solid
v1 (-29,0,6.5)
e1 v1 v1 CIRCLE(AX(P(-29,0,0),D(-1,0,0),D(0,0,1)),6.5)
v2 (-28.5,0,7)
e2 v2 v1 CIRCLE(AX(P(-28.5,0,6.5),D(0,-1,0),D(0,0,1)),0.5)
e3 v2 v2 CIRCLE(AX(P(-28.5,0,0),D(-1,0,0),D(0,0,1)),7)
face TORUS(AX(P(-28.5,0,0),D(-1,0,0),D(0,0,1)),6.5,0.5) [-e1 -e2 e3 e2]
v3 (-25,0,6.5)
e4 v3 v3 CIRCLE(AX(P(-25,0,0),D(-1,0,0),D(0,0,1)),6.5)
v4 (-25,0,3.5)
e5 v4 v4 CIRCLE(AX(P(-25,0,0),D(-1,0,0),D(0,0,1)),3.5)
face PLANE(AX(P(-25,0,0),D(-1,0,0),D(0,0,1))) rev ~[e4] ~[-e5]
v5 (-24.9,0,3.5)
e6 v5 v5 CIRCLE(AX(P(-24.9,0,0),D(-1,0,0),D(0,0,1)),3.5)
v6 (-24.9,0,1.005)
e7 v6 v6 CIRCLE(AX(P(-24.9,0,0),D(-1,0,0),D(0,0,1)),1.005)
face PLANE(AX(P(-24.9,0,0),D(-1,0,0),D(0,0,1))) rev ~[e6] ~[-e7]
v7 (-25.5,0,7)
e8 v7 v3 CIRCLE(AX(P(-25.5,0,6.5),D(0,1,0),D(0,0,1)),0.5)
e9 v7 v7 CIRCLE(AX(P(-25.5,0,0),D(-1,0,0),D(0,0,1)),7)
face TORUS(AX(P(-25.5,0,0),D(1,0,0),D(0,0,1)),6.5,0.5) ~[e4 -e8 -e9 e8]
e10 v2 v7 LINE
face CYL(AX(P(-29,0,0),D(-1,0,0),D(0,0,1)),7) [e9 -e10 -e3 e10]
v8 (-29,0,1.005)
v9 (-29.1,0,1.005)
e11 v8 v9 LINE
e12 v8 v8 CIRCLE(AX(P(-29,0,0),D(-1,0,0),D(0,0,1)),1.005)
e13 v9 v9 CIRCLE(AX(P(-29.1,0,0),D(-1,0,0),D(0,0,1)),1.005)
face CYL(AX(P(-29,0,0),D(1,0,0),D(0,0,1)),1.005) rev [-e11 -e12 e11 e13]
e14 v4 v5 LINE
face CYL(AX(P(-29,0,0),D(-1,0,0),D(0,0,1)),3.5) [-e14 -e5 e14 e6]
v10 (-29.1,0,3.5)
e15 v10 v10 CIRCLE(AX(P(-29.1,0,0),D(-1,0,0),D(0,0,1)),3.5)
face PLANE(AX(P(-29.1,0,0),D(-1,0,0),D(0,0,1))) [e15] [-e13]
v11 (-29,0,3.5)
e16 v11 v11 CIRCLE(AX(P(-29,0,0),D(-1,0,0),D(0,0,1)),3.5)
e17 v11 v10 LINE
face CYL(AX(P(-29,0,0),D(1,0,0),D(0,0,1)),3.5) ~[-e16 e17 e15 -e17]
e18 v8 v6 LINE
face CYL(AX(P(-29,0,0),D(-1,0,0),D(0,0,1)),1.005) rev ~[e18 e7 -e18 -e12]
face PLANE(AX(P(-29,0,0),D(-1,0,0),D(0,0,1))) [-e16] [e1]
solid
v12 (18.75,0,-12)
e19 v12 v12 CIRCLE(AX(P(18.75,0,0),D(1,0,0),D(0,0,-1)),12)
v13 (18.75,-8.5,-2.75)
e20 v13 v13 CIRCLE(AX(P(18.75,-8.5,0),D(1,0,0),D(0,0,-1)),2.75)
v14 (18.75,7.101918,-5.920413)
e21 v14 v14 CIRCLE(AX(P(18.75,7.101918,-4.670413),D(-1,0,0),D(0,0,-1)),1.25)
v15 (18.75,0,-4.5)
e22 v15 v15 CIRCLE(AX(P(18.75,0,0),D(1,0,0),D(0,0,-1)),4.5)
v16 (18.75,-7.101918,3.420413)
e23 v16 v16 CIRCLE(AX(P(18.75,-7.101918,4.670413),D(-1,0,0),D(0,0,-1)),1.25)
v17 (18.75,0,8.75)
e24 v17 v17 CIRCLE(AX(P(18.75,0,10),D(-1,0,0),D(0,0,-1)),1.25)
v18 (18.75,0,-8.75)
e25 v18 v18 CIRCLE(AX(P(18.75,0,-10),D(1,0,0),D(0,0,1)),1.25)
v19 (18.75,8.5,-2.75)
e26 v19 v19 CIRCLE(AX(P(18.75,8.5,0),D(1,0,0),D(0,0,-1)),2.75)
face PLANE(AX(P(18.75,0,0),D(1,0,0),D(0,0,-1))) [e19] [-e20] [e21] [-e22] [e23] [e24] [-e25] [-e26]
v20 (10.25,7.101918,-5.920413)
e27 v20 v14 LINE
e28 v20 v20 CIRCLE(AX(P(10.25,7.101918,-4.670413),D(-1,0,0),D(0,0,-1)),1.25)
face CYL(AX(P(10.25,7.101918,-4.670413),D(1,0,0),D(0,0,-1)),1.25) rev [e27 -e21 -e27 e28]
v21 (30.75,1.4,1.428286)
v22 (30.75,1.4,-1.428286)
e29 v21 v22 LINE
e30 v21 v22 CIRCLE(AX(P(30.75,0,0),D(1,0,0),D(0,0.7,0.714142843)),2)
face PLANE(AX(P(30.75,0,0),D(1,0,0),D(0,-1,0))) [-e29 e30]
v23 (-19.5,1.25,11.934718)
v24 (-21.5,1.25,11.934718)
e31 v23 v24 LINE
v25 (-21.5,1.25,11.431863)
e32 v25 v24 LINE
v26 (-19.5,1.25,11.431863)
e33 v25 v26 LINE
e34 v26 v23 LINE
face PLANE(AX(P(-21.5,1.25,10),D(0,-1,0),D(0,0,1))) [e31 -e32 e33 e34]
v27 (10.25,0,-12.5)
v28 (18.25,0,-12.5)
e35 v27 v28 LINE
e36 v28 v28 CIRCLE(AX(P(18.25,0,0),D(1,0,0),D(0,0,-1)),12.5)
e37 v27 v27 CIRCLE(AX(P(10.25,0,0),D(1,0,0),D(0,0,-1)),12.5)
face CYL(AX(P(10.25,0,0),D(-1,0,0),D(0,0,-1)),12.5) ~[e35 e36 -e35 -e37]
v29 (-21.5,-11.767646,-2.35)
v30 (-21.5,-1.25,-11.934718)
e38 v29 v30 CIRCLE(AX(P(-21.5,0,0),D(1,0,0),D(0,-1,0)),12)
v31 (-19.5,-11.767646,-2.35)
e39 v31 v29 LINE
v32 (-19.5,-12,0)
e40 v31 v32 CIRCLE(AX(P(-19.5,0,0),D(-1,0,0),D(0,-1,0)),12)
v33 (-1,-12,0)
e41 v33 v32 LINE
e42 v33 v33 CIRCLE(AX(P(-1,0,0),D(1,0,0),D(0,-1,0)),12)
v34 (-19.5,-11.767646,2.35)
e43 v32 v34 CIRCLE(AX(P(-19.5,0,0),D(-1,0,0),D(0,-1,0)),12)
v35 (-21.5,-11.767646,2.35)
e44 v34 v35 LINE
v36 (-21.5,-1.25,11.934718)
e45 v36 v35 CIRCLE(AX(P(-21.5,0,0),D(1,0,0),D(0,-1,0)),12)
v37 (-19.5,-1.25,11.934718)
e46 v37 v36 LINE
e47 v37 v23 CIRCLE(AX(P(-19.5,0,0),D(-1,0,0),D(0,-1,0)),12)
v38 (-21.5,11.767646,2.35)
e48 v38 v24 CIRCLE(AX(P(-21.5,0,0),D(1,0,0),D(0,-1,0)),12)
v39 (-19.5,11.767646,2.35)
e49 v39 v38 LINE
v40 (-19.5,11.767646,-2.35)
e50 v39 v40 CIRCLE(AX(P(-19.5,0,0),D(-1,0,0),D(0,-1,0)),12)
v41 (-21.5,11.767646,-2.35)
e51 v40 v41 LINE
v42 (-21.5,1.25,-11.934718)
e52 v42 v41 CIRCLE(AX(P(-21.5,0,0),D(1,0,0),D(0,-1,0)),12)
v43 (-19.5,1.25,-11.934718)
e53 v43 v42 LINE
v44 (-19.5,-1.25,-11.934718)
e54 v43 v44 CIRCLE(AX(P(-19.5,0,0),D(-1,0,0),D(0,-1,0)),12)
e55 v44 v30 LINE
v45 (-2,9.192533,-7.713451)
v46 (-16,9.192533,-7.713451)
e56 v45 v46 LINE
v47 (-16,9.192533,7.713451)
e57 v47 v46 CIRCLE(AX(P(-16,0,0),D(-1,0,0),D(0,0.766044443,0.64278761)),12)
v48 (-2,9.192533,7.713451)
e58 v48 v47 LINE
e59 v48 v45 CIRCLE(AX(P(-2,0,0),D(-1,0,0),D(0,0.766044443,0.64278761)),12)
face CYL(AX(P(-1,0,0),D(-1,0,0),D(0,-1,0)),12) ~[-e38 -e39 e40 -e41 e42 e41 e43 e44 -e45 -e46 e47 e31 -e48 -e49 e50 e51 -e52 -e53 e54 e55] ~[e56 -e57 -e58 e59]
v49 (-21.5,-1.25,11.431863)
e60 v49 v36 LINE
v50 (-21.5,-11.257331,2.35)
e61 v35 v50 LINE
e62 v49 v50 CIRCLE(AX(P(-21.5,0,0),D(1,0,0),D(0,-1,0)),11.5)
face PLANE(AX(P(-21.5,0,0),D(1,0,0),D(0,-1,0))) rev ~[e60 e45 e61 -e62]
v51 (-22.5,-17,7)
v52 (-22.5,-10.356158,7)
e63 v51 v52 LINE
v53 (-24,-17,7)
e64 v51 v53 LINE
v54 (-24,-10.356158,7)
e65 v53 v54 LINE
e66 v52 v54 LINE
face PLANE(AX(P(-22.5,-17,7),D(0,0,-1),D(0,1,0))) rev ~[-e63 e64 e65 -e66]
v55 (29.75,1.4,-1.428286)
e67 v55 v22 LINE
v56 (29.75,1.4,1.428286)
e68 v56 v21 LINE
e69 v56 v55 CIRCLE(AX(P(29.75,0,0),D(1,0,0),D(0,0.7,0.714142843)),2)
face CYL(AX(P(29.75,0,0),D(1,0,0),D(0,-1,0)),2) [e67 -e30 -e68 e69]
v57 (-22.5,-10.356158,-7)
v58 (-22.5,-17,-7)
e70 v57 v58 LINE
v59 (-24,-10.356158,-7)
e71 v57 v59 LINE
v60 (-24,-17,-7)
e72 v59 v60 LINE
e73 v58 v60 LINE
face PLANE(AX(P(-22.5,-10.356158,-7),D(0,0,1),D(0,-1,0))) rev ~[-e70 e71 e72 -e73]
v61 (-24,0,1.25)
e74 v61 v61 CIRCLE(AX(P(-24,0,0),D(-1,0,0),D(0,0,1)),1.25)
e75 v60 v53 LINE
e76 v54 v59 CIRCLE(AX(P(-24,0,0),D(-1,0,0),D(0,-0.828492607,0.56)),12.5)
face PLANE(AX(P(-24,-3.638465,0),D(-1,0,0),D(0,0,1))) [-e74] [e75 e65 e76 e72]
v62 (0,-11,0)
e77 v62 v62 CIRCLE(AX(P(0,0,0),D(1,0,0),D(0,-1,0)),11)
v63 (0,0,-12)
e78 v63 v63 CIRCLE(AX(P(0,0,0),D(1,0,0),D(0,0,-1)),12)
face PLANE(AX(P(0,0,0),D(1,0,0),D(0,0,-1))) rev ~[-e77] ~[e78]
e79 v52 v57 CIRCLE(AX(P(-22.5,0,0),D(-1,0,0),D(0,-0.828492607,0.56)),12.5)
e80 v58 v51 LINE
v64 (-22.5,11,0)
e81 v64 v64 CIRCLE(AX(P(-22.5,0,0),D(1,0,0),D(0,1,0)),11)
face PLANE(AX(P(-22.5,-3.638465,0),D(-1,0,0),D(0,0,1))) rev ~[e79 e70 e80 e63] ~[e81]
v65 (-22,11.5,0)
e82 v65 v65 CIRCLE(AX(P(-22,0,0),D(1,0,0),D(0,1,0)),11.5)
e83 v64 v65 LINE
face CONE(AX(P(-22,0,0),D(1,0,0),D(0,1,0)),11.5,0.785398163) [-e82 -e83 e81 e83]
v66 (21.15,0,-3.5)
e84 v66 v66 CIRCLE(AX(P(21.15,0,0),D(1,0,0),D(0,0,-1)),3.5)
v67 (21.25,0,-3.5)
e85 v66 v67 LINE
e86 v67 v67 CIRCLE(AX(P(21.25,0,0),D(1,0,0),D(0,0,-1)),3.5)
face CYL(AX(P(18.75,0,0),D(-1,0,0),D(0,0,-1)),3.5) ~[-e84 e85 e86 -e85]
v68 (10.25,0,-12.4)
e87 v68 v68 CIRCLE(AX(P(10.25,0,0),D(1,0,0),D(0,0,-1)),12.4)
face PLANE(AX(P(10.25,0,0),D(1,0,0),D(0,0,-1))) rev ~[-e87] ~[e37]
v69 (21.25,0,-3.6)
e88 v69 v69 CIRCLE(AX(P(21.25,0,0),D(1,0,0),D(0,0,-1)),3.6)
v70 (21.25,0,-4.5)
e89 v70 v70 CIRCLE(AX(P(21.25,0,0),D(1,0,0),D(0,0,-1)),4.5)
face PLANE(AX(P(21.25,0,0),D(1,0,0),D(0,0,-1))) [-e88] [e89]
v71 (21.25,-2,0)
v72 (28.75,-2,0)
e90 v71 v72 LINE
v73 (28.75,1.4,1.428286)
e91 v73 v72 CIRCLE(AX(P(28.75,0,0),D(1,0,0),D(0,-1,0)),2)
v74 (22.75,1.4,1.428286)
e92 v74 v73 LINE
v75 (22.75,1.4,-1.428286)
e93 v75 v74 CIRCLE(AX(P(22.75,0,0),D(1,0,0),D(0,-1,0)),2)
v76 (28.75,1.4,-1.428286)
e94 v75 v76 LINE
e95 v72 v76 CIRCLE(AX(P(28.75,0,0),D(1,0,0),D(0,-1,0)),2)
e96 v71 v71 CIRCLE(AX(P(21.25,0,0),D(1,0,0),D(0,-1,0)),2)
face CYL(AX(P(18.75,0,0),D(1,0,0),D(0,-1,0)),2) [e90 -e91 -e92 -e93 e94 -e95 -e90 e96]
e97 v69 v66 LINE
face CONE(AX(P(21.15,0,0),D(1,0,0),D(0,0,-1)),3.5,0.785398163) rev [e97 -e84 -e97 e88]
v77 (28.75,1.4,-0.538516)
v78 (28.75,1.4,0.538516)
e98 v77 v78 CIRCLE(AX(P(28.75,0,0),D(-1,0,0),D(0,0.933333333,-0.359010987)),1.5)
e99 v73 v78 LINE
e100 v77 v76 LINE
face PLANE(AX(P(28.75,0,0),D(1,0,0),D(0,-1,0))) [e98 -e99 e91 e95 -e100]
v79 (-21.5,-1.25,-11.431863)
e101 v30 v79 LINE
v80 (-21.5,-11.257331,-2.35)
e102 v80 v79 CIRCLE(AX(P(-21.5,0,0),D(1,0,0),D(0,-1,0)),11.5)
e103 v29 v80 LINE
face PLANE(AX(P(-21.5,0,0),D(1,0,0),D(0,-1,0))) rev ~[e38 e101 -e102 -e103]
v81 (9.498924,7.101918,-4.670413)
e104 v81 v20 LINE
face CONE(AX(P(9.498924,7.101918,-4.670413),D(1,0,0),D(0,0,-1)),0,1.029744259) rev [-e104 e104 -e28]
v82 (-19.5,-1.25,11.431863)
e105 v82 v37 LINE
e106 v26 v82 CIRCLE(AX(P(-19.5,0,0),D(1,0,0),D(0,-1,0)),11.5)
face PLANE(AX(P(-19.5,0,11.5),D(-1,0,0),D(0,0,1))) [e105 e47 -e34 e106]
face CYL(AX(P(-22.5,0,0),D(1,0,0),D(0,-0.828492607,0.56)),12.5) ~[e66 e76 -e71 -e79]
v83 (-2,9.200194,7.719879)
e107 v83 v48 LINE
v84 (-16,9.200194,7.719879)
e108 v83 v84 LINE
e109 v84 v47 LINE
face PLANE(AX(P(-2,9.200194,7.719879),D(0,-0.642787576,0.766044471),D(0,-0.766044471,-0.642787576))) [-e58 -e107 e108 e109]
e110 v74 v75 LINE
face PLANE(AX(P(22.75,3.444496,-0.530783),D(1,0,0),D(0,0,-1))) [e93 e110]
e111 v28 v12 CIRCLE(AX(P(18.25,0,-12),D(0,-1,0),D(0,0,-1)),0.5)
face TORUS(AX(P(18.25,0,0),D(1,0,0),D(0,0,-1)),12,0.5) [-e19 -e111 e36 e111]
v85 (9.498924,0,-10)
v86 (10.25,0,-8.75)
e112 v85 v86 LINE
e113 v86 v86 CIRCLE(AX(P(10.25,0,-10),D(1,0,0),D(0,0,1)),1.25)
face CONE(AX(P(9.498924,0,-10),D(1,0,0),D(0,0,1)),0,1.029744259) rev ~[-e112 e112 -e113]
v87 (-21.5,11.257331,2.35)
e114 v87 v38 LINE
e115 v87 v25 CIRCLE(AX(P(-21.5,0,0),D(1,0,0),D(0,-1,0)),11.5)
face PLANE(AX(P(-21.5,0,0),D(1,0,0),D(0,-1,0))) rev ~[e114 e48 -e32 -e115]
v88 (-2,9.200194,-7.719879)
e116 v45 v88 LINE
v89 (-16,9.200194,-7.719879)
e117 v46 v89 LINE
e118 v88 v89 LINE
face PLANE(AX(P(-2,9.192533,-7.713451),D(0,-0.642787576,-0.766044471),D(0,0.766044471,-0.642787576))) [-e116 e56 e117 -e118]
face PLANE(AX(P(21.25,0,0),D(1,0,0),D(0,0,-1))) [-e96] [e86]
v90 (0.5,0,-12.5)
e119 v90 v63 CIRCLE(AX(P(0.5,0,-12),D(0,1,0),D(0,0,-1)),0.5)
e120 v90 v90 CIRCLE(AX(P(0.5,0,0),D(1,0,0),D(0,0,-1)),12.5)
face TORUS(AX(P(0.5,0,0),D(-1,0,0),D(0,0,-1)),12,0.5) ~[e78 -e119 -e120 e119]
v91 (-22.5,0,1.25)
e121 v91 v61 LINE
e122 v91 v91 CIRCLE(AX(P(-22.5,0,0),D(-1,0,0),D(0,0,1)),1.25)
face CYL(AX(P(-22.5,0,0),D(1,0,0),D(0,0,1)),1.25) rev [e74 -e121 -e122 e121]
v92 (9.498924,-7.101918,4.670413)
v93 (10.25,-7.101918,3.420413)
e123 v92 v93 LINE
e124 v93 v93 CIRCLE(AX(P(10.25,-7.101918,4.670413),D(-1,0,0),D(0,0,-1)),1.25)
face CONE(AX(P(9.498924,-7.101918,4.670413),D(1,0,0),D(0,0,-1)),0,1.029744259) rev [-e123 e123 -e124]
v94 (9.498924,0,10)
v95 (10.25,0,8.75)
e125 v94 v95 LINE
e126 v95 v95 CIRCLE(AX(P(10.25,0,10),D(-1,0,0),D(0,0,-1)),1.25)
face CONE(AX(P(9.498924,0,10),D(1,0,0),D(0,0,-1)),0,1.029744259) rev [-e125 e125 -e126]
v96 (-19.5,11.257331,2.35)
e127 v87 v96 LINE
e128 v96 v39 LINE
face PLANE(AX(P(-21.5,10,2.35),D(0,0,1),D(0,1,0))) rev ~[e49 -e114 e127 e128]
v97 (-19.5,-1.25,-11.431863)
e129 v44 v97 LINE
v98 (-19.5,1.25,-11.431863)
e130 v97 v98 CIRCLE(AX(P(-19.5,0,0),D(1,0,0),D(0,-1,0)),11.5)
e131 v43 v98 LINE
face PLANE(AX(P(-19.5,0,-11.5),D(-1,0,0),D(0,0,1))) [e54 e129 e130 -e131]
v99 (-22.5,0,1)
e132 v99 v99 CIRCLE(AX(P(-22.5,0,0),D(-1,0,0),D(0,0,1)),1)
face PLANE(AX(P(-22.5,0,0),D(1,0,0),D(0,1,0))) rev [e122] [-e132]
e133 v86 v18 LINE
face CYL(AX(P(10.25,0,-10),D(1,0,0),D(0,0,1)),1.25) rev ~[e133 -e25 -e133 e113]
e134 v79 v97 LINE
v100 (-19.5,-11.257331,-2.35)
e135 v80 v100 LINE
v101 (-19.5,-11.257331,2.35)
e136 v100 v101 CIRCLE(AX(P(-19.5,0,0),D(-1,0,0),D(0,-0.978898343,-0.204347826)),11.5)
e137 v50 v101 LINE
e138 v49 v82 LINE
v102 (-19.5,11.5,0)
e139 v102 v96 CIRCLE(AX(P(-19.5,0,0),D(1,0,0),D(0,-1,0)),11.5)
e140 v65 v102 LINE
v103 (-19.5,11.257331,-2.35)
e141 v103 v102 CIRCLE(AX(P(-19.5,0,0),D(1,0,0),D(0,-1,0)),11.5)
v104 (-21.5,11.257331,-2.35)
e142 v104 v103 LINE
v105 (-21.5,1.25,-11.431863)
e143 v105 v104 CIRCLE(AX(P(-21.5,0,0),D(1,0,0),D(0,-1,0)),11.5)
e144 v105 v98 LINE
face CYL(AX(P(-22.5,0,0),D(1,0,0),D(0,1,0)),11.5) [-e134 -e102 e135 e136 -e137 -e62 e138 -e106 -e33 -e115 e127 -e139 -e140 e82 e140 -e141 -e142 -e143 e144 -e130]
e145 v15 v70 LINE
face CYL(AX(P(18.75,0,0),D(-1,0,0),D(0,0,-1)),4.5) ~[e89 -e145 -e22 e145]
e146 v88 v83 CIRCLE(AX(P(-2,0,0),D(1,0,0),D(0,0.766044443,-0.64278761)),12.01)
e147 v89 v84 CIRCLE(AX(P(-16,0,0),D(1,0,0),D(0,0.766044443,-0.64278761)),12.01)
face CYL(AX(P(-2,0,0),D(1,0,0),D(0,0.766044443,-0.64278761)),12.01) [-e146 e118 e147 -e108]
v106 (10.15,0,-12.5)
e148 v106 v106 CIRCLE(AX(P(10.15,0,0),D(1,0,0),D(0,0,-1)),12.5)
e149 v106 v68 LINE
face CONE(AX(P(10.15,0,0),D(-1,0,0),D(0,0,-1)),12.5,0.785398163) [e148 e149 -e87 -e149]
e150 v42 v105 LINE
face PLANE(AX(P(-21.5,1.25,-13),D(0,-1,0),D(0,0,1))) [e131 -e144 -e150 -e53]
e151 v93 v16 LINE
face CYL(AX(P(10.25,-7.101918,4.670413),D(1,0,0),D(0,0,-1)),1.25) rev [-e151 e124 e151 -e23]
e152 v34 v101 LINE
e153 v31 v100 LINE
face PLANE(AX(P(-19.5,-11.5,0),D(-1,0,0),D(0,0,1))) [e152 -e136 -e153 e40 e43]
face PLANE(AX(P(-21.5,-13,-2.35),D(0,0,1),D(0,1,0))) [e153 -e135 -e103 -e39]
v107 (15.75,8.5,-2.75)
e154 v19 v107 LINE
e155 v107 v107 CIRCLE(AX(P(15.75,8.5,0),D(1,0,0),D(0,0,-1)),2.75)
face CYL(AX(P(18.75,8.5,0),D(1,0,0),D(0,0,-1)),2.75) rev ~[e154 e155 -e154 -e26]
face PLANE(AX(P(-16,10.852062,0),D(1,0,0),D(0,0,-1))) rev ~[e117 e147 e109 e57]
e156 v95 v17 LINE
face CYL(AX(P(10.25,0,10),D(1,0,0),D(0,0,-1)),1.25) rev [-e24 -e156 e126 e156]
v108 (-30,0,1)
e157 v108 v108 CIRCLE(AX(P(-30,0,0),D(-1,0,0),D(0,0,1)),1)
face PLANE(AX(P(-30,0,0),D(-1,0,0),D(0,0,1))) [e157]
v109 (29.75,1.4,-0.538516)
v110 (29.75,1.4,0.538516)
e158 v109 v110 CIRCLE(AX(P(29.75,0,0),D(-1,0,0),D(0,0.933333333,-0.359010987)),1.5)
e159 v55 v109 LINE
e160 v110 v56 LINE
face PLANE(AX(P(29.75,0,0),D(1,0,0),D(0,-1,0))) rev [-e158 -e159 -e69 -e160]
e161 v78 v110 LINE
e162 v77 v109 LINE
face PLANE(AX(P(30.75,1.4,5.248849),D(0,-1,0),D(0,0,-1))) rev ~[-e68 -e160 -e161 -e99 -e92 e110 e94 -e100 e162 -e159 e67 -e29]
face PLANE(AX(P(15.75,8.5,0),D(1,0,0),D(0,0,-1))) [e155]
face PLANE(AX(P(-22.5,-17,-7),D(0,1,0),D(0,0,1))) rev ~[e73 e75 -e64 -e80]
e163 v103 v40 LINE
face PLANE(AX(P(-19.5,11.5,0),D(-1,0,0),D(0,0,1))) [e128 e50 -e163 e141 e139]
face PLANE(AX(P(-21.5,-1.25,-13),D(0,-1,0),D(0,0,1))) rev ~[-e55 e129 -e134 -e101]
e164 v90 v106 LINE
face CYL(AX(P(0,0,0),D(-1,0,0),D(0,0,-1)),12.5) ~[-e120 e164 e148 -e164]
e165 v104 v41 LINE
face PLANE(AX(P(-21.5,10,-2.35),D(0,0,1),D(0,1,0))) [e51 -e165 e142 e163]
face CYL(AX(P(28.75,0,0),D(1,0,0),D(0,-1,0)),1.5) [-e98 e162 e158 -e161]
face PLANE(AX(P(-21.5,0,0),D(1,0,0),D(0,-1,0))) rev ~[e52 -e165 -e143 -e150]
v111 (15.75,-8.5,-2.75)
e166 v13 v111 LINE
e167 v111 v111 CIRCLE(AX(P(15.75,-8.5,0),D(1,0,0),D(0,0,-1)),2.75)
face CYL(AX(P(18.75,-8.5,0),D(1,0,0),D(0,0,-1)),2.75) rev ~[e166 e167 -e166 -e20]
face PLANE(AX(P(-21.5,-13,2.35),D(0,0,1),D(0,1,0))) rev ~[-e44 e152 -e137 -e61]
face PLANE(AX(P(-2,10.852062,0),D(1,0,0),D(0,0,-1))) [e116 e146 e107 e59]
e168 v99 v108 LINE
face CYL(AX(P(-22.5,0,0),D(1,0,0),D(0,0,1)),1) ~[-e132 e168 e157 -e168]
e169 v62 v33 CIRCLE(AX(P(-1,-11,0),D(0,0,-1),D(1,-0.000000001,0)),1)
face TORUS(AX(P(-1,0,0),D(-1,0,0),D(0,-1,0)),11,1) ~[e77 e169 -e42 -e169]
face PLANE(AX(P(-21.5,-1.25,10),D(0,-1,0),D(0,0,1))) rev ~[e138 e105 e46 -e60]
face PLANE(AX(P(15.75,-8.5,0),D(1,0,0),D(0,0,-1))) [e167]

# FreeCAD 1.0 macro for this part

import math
import FreeCAD as App
import Part
import Sketcher
Q = App.Units.Quantity


def edges_at(feature, points):
    """Names of the edges that pass closest to the given points."""
    edges = feature.Shape.Edges
    near = lambda p: min(range(len(edges)), key=lambda i: edges[i].distToShape(Part.Vertex(*p))[0])
    return sorted({f"Edge{near(p) + 1}" for p in points})

doc = App.newDocument("Part")
params = doc.addObject("Spreadsheet::Sheet", "Params")
for row, (alias, value) in enumerate([
    ("sketch1_radius", "1 mm"),
    ("sketch1_radius2", "0.5 mm"),
    ("sketch1_height", "11 mm"),
    ("sketch1_width", "20.5 mm"),
    ("revolution_angle", "360 deg"),
    ("sketch2_width", "3 mm"),
    ("sketch2_width2", "2.5 mm"),
    ("sketch2_height", "4.7 mm"),
    ("pocket1_length", "2 mm"),
    ("sketch3_radius", "0.5 mm"),
    ("sketch3_width", "22 mm"),
    ("sketch3_height", "11 mm"),
    ("revolution2_angle", "360 deg"),
    ("chamfer_size", "0.5 mm"),
    ("sketch4_diameter", "2.5 mm"),
    ("sketch4_radius", "12.5 mm"),
    ("sketch4_height", "14 mm"),
    ("pad1_length", "1.5 mm"),
    ("sketch5_diameter", "25 mm"),
    ("pad2_length", "10.25 mm"),
    ("fillet_radius", "0.5 mm"),
    ("chamfer2_size", "0.1 mm"),
    ("sketch6_diameter", "25 mm"),
    ("pad3_length", "8.5 mm"),
    ("fillet2_radius", "0.5 mm"),
    ("sketch7_diameter", "9 mm"),
    ("sketch7_diameter2", "7 mm"),
    ("pad4_length", "2.5 mm"),
    ("chamfer3_size", "0.1 mm"),
    ("sketch8_diameter", "7 mm"),
    ("sketch8_diameter2", "4 mm"),
    ("pad5_length", "2.5 mm"),
    ("sketch9_width", "10 mm"),
    ("sketch9_width2", "1 mm"),
    ("sketch9_height", "2 mm"),
    ("sketch9_height2", "0.5 mm"),
    ("revolution3_angle", "360 deg"),
    ("pocket2_length", "8 mm"),
    ("sketch11_diameter", "2 mm"),
    ("pad6_length", "7.5 mm"),
    ("sketch12_diameter", "5.5 mm"),
    ("pocket3_length", "3 mm"),
    ("sketch13_width", "8.5 mm"),
    ("sketch13_height", "1.25 mm"),
    ("groove_angle", "360 deg"),
    ("sketch14_width", "8.5 mm"),
    ("sketch14_height", "1.25 mm"),
    ("groove2_angle", "360 deg"),
    ("linearpattern_pitch", "17 mm"),
    ("sketch15_radius", "12 mm"),
    ("sketch15_radius2", "12.01 mm"),
    ("pad7_length", "14 mm"),
    ("sketch16_diameter", "14 mm"),
    ("sketch16_diameter2", "7 mm"),
    ("pad8_length", "4 mm"),
    ("fillet3_radius", "0.5 mm"),
    ("sketch17_diameter", "7 mm"),
    ("sketch17_diameter2", "2.01 mm"),
    ("pad9_length", "0.1 mm"),
    ("pad9_length2", "4.1 mm"),
], start=1):
    params.set(f"A{row}", alias)
    params.set(f"B{row}", "=" + value)
    params.setAlias(f"B{row}", alias)

body = doc.addObject("PartDesign::Body", "Body")

sketch1 = body.newObject("Sketcher::SketchObject", "Sketch")
sketch1.AttachmentSupport = (doc.getObject("XY_Plane"), [""])
sketch1.MapMode = "FlatFace"
sketch1.addGeometry([
    Part.LineSegment(App.Vector(0, -11, 0), App.Vector(0, 0, 0)),
    Part.LineSegment(App.Vector(0, 0, 0), App.Vector(-0.5, 0, 0)),
    Part.LineSegment(App.Vector(-0.5, 0, 0), App.Vector(-0.5, -11, 0)),
    Part.ArcOfCircle(Part.Circle(App.Vector(-1, -11, 0), App.Vector(0, 0, 1), 0.5), math.radians(-90), math.radians(0)),
    Part.LineSegment(App.Vector(-1, -11.5, 0), App.Vector(-21.5, -11.5, 0)),
    Part.LineSegment(App.Vector(-21.5, -11.5, 0), App.Vector(-21.5, -12, 0)),
    Part.LineSegment(App.Vector(-21.5, -12, 0), App.Vector(-1, -12, 0)),
    Part.ArcOfCircle(Part.Circle(App.Vector(-1, -11, 0), App.Vector(0, 0, 1), 1), math.radians(-90), math.radians(0)),
], False)
sketch1.addConstraint([
    Sketcher.Constraint("Coincident", 0, 2, 1, 1),
    Sketcher.Constraint("Coincident", 1, 2, 2, 1),
    Sketcher.Constraint("Tangent", 2, 2, 3, 2),
    Sketcher.Constraint("Tangent", 3, 1, 4, 1),
    Sketcher.Constraint("Coincident", 4, 2, 5, 1),
    Sketcher.Constraint("Coincident", 5, 2, 6, 1),
    Sketcher.Constraint("Tangent", 6, 2, 7, 1),
    Sketcher.Constraint("Tangent", 7, 2, 0, 1),
    Sketcher.Constraint("Vertical", 0),
    Sketcher.Constraint("Horizontal", 1),
    Sketcher.Constraint("Vertical", 2),
    Sketcher.Constraint("Horizontal", 4),
    Sketcher.Constraint("Vertical", 5),
    Sketcher.Constraint("Horizontal", 6),
    Sketcher.Constraint("Coincident", 0, 2, -1, 1),
    Sketcher.Constraint("Coincident", 7, 3, 3, 3),
    Sketcher.Constraint("Radius", 7, 1.0),
    Sketcher.Constraint("Radius", 3, 0.5),
    Sketcher.Constraint("DistanceY", 0, 1, 0, 2, 11.0),
    Sketcher.Constraint("DistanceX", 4, 2, 4, 1, 20.5),
])
sketch1.setExpression("Constraints[16]", "Params.sketch1_radius")
sketch1.setExpression("Constraints[17]", "Params.sketch1_radius2")
sketch1.setExpression("Constraints[18]", "Params.sketch1_height")
sketch1.setExpression("Constraints[19]", "Params.sketch1_width")
revolution = body.newObject("PartDesign::Revolution", "Revolution")
revolution.Profile = sketch1
revolution.ReferenceAxis = (sketch1, ["H_Axis"])
revolution.setExpression("Angle", "Params.revolution_angle")

sketch2 = body.newObject("Sketcher::SketchObject", "Sketch001")
sketch2.AttachmentSupport = (doc.getObject("YZ_Plane"), [""])
sketch2.MapMode = "FlatFace"
sketch2.AttachmentOffset = App.Placement(App.Vector(0, 0, -21.5), App.Rotation())
sketch2.addGeometry([
    Part.LineSegment(App.Vector(-10, -2.4, 0), App.Vector(-13, -2.4, 0)),
    Part.LineSegment(App.Vector(-13, -2.4, 0), App.Vector(-13, 2.4, 0)),
    Part.LineSegment(App.Vector(-13, 2.4, 0), App.Vector(-10, 2.4, 0)),
    Part.LineSegment(App.Vector(-10, 2.4, 0), App.Vector(-10, -2.4, 0)),
    Part.LineSegment(App.Vector(13, -2.4, 0), App.Vector(10, -2.4, 0)),
    Part.LineSegment(App.Vector(10, -2.4, 0), App.Vector(10, 2.4, 0)),
    Part.LineSegment(App.Vector(10, 2.4, 0), App.Vector(13, 2.4, 0)),
    Part.LineSegment(App.Vector(13, 2.4, 0), App.Vector(13, -2.4, 0)),
    Part.LineSegment(App.Vector(1.2, 10, 0), App.Vector(-1.2, 10, 0)),
    Part.LineSegment(App.Vector(-1.2, 10, 0), App.Vector(-1.2, 13, 0)),
    Part.LineSegment(App.Vector(-1.2, 13, 0), App.Vector(1.2, 13, 0)),
    Part.LineSegment(App.Vector(1.2, 13, 0), App.Vector(1.2, 10, 0)),
    Part.LineSegment(App.Vector(1.2, -13, 0), App.Vector(-1.2, -13, 0)),
    Part.LineSegment(App.Vector(-1.2, -13, 0), App.Vector(-1.2, -10, 0)),
    Part.LineSegment(App.Vector(-1.2, -10, 0), App.Vector(1.2, -10, 0)),
    Part.LineSegment(App.Vector(1.2, -10, 0), App.Vector(1.2, -13, 0)),
], False)
sketch2.addConstraint([
    Sketcher.Constraint("Coincident", 0, 2, 1, 1),
    Sketcher.Constraint("Coincident", 1, 2, 2, 1),
    Sketcher.Constraint("Coincident", 2, 2, 3, 1),
    Sketcher.Constraint("Coincident", 3, 2, 0, 1),
    Sketcher.Constraint("Coincident", 4, 2, 5, 1),
    Sketcher.Constraint("Coincident", 5, 2, 6, 1),
    Sketcher.Constraint("Coincident", 6, 2, 7, 1),
    Sketcher.Constraint("Coincident", 7, 2, 4, 1),
    Sketcher.Constraint("Coincident", 8, 2, 9, 1),
    Sketcher.Constraint("Coincident", 9, 2, 10, 1),
    Sketcher.Constraint("Coincident", 10, 2, 11, 1),
    Sketcher.Constraint("Coincident", 11, 2, 8, 1),
    Sketcher.Constraint("Coincident", 12, 2, 13, 1),
    Sketcher.Constraint("Coincident", 13, 2, 14, 1),
    Sketcher.Constraint("Coincident", 14, 2, 15, 1),
    Sketcher.Constraint("Coincident", 15, 2, 12, 1),
    Sketcher.Constraint("Horizontal", 0),
    Sketcher.Constraint("Vertical", 1),
    Sketcher.Constraint("Horizontal", 2),
    Sketcher.Constraint("Vertical", 3),
    Sketcher.Constraint("Horizontal", 4),
    Sketcher.Constraint("Vertical", 5),
    Sketcher.Constraint("Horizontal", 6),
    Sketcher.Constraint("Vertical", 7),
    Sketcher.Constraint("Horizontal", 8),
    Sketcher.Constraint("Vertical", 9),
    Sketcher.Constraint("Horizontal", 10),
    Sketcher.Constraint("Vertical", 11),
    Sketcher.Constraint("Horizontal", 12),
    Sketcher.Constraint("Vertical", 13),
    Sketcher.Constraint("Horizontal", 14),
    Sketcher.Constraint("Vertical", 15),
    Sketcher.Constraint("Symmetric", 2, 2, 4, 2, -1, 1),
    Sketcher.Constraint("Symmetric", 0, 2, 6, 2, -1, 1),
    Sketcher.Constraint("Symmetric", 10, 2, 12, 2, -1, 1),
    Sketcher.Constraint("Symmetric", 8, 2, 14, 2, -1, 1),
    Sketcher.Constraint("Horizontal", 3, 2, 4, 2),
    Sketcher.Constraint("Vertical", 9, 2, 12, 2),
    Sketcher.Constraint("Equal", 6, 9),
    Sketcher.Constraint("DistanceX", 0, 2, 0, 1, 3.0),
    Sketcher.Constraint("DistanceX", 8, 2, 8, 1, 2.5),
    Sketcher.Constraint("DistanceY", 1, 1, 1, 2, 4.7),
    Sketcher.Constraint("DistanceX", 0, 2, -1, 1, 13.0),
    Sketcher.Constraint("DistanceY", -1, 1, 8, 2, 10.0),
])
sketch2.setExpression("Constraints[39]", "Params.sketch2_width")
sketch2.setExpression("Constraints[40]", "Params.sketch2_width2")
sketch2.setExpression("Constraints[41]", "Params.sketch2_height")
pocket1 = body.newObject("PartDesign::Pocket", "Pocket")
pocket1.Profile = sketch2
pocket1.setExpression("Length", "Params.pocket1_length")
pocket1.Reversed = True

sketch3 = body.newObject("Sketcher::SketchObject", "Sketch002")
sketch3.AttachmentSupport = (doc.getObject("XY_Plane"), [""])
sketch3.MapMode = "FlatFace"
sketch3.addGeometry([
    Part.LineSegment(App.Vector(-0.5, 0, 0), App.Vector(-0.5, 11, 0)),
    Part.ArcOfCircle(Part.Circle(App.Vector(-1, 11, 0), App.Vector(0, 0, 1), 0.5), math.radians(0), math.radians(90)),
    Part.LineSegment(App.Vector(-1, 11.5, 0), App.Vector(-22.5, 11.5, 0)),
    Part.LineSegment(App.Vector(-22.5, 11.5, 0), App.Vector(-22.5, 0, 0)),
    Part.LineSegment(App.Vector(-22.5, 0, 0), App.Vector(-0.5, 0, 0)),
], False)
sketch3.addConstraint([
    Sketcher.Constraint("Tangent", 0, 2, 1, 1),
    Sketcher.Constraint("Tangent", 1, 2, 2, 1),
    Sketcher.Constraint("Coincident", 2, 2, 3, 1),
    Sketcher.Constraint("Coincident", 3, 2, 4, 1),
    Sketcher.Constraint("Coincident", 4, 2, 0, 1),
    Sketcher.Constraint("Vertical", 0),
    Sketcher.Constraint("Horizontal", 2),
    Sketcher.Constraint("Vertical", 3),
    Sketcher.Constraint("Horizontal", 4),
    Sketcher.Constraint("PointOnObject", 3, 2, -1),
    Sketcher.Constraint("Radius", 1, 0.5),
    Sketcher.Constraint("DistanceX", 4, 1, 4, 2, 22.0),
    Sketcher.Constraint("DistanceY", 0, 1, 0, 2, 11.0),
    Sketcher.Constraint("DistanceX", 1, 3, -1, 1, 1.0),
])
sketch3.setExpression("Constraints[10]", "Params.sketch3_radius")
sketch3.setExpression("Constraints[11]", "Params.sketch3_width")
sketch3.setExpression("Constraints[12]", "Params.sketch3_height")
revolution2 = body.newObject("PartDesign::Revolution", "Revolution001")
revolution2.Profile = sketch3
revolution2.ReferenceAxis = (sketch3, ["H_Axis"])
revolution2.setExpression("Angle", "Params.revolution2_angle")
doc.recompute()

chamfer = body.newObject("PartDesign::Chamfer", "Chamfer")
chamfer.Base = (revolution2, edges_at(revolution2, [(-22.5, -11.5, 0)]))
chamfer.setExpression("Size", "Params.chamfer_size")

sketch4 = body.newObject("Sketcher::SketchObject", "Sketch003")
sketch4.AttachmentSupport = (doc.getObject("YZ_Plane"), [""])
sketch4.MapMode = "FlatFace"
sketch4.AttachmentOffset = App.Placement(App.Vector(0, 0, -22.5), App.Rotation())
sketch4.addGeometry([
    Part.LineSegment(App.Vector(-10.4, -7, 0), App.Vector(-17, -7, 0)),
    Part.LineSegment(App.Vector(-17, -7, 0), App.Vector(-17, 7, 0)),
    Part.LineSegment(App.Vector(-17, 7, 0), App.Vector(-10.4, 7, 0)),
    Part.ArcOfCircle(Part.Circle(App.Vector(0, 0, 0), App.Vector(0, 0, 1), 12.5), math.radians(-146), math.radians(146)),
    Part.Circle(App.Vector(0, 0, 0), App.Vector(0, 0, 1), 1.2),
], False)
sketch4.addConstraint([
    Sketcher.Constraint("Coincident", 0, 2, 1, 1),
    Sketcher.Constraint("Coincident", 1, 2, 2, 1),
    Sketcher.Constraint("Coincident", 2, 2, 3, 2),
    Sketcher.Constraint("Coincident", 3, 1, 0, 1),
    Sketcher.Constraint("Horizontal", 0),
    Sketcher.Constraint("Vertical", 1),
    Sketcher.Constraint("Horizontal", 2),
    Sketcher.Constraint("Coincident", 3, 3, -1, 1),
    Sketcher.Constraint("Coincident", 4, 3, -1, 1),
    Sketcher.Constraint("Vertical", 2, 2, 3, 1),
    Sketcher.Constraint("Diameter", 4, 2.5),
    Sketcher.Constraint("Radius", 3, 12.5),
    Sketcher.Constraint("DistanceY", 1, 1, 1, 2, 14.0),
    Sketcher.Constraint("DistanceX", 0, 2, -1, 1, 17.0),
])
sketch4.setExpression("Constraints[10]", "Params.sketch4_diameter")
sketch4.setExpression("Constraints[11]", "Params.sketch4_radius")
sketch4.setExpression("Constraints[12]", "Params.sketch4_height")
pad1 = body.newObject("PartDesign::Pad", "Pad")
pad1.Profile = sketch4
pad1.setExpression("Length", "Params.pad1_length")
pad1.Reversed = True

sketch5 = body.newObject("Sketcher::SketchObject", "Sketch004")
sketch5.AttachmentSupport = (doc.getObject("YZ_Plane"), [""])
sketch5.MapMode = "FlatFace"
sketch5.addGeometry(Part.Circle(App.Vector(0, 0, 0), App.Vector(0, 0, 1), 12), False)
sketch5.addConstraint([
    Sketcher.Constraint("Coincident", 0, 3, -1, 1),
    Sketcher.Constraint("Diameter", 0, 25.0),
])
sketch5.setExpression("Constraints[1]", "Params.sketch5_diameter")
pad2 = body.newObject("PartDesign::Pad", "Pad001")
pad2.Profile = sketch5
pad2.setExpression("Length", "Params.pad2_length")
doc.recompute()

fillet = body.newObject("PartDesign::Fillet", "Fillet")
fillet.Base = (pad2, edges_at(pad2, [(0, 0, 12.5)]))
fillet.setExpression("Radius", "Params.fillet_radius")
doc.recompute()

chamfer2 = body.newObject("PartDesign::Chamfer", "Chamfer001")
chamfer2.Base = (fillet, edges_at(fillet, [(10.25, 0, 12.5)]))
chamfer2.setExpression("Size", "Params.chamfer2_size")

sketch6 = body.newObject("Sketcher::SketchObject", "Sketch005")
sketch6.AttachmentSupport = (doc.getObject("YZ_Plane"), [""])
sketch6.MapMode = "FlatFace"
sketch6.AttachmentOffset = App.Placement(App.Vector(0, 0, 10.25), App.Rotation())
sketch6.addGeometry(Part.Circle(App.Vector(0, 0, 0), App.Vector(0, 0, 1), 12), False)
sketch6.addConstraint([
    Sketcher.Constraint("Coincident", 0, 3, -1, 1),
    Sketcher.Constraint("Diameter", 0, 25.0),
])
sketch6.setExpression("Constraints[1]", "Params.sketch6_diameter")
pad3 = body.newObject("PartDesign::Pad", "Pad002")
pad3.Profile = sketch6
pad3.setExpression("Length", "Params.pad3_length")
doc.recompute()

fillet2 = body.newObject("PartDesign::Fillet", "Fillet001")
fillet2.Base = (pad3, edges_at(pad3, [(18.75, 0, 12.5)]))
fillet2.setExpression("Radius", "Params.fillet2_radius")

sketch7 = body.newObject("Sketcher::SketchObject", "Sketch006")
sketch7.AttachmentSupport = (doc.getObject("YZ_Plane"), [""])
sketch7.MapMode = "FlatFace"
sketch7.AttachmentOffset = App.Placement(App.Vector(0, 0, 18.75), App.Rotation())
sketch7.addGeometry([
    Part.Circle(App.Vector(0, 0, 0), App.Vector(0, 0, 1), 4.5),
    Part.Circle(App.Vector(0, 0, 0), App.Vector(0, 0, 1), 3.5),
], False)
sketch7.addConstraint([
    Sketcher.Constraint("Coincident", 0, 3, -1, 1),
    Sketcher.Constraint("Coincident", 1, 3, -1, 1),
    Sketcher.Constraint("Diameter", 0, 9.0),
    Sketcher.Constraint("Diameter", 1, 7.0),
])
sketch7.setExpression("Constraints[2]", "Params.sketch7_diameter")
sketch7.setExpression("Constraints[3]", "Params.sketch7_diameter2")
pad4 = body.newObject("PartDesign::Pad", "Pad003")
pad4.Profile = sketch7
pad4.setExpression("Length", "Params.pad4_length")
doc.recompute()

chamfer3 = body.newObject("PartDesign::Chamfer", "Chamfer002")
chamfer3.Base = (pad4, edges_at(pad4, [(21.25, 0, 3.5)]))
chamfer3.setExpression("Size", "Params.chamfer3_size")

sketch8 = body.newObject("Sketcher::SketchObject", "Sketch007")
sketch8.AttachmentSupport = (doc.getObject("YZ_Plane"), [""])
sketch8.MapMode = "FlatFace"
sketch8.AttachmentOffset = App.Placement(App.Vector(0, 0, 18.75), App.Rotation())
sketch8.addGeometry([
    Part.Circle(App.Vector(0, 0, 0), App.Vector(0, 0, 1), 3.5),
    Part.Circle(App.Vector(0, 0, 0), App.Vector(0, 0, 1), 2),
], False)
sketch8.addConstraint([
    Sketcher.Constraint("Coincident", 0, 3, -1, 1),
    Sketcher.Constraint("Coincident", 1, 3, -1, 1),
    Sketcher.Constraint("Diameter", 0, 7.0),
    Sketcher.Constraint("Diameter", 1, 4.0),
])
sketch8.setExpression("Constraints[2]", "Params.sketch8_diameter")
sketch8.setExpression("Constraints[3]", "Params.sketch8_diameter2")
pad5 = body.newObject("PartDesign::Pad", "Pad004")
pad5.Profile = sketch8
pad5.setExpression("Length", "Params.pad5_length")

sketch9 = body.newObject("Sketcher::SketchObject", "Sketch008")
sketch9.AttachmentSupport = (doc.getObject("XY_Plane"), [""])
sketch9.MapMode = "FlatFace"
sketch9.addGeometry([
    Part.LineSegment(App.Vector(18.8, -2, 0), App.Vector(28.8, -2, 0)),
    Part.LineSegment(App.Vector(28.8, -2, 0), App.Vector(28.8, -1.5, 0)),
    Part.LineSegment(App.Vector(28.8, -1.5, 0), App.Vector(29.8, -1.5, 0)),
    Part.LineSegment(App.Vector(29.8, -1.5, 0), App.Vector(29.8, -2, 0)),
    Part.LineSegment(App.Vector(29.8, -2, 0), App.Vector(30.8, -2, 0)),
    Part.LineSegment(App.Vector(30.8, -2, 0), App.Vector(30.8, 0, 0)),
    Part.LineSegment(App.Vector(30.8, 0, 0), App.Vector(18.8, 0, 0)),
    Part.LineSegment(App.Vector(18.8, 0, 0), App.Vector(18.8, -2, 0)),
], False)
sketch9.addConstraint([
    Sketcher.Constraint("Coincident", 0, 2, 1, 1),
    Sketcher.Constraint("Coincident", 1, 2, 2, 1),
    Sketcher.Constraint("Coincident", 2, 2, 3, 1),
    Sketcher.Constraint("Coincident", 3, 2, 4, 1),
    Sketcher.Constraint("Coincident", 4, 2, 5, 1),
    Sketcher.Constraint("Coincident", 5, 2, 6, 1),
    Sketcher.Constraint("Coincident", 6, 2, 7, 1),
    Sketcher.Constraint("Coincident", 7, 2, 0, 1),
    Sketcher.Constraint("Horizontal", 0),
    Sketcher.Constraint("Vertical", 1),
    Sketcher.Constraint("Horizontal", 2),
    Sketcher.Constraint("Vertical", 3),
    Sketcher.Constraint("Horizontal", 4),
    Sketcher.Constraint("Vertical", 5),
    Sketcher.Constraint("Horizontal", 6),
    Sketcher.Constraint("Vertical", 7),
    Sketcher.Constraint("PointOnObject", 5, 2, -1),
    Sketcher.Constraint("Horizontal", 0, 2, 3, 2),
    Sketcher.Constraint("Equal", 2, 4),
    Sketcher.Constraint("DistanceX", 0, 1, 0, 2, 10.0),
    Sketcher.Constraint("DistanceX", 2, 1, 2, 2, 1.0),
    Sketcher.Constraint("DistanceY", 5, 1, 5, 2, 2.0),
    Sketcher.Constraint("DistanceY", 1, 1, 1, 2, 0.5),
    Sketcher.Constraint("DistanceX", -1, 1, 0, 2, 28.75),
])
sketch9.setExpression("Constraints[19]", "Params.sketch9_width")
sketch9.setExpression("Constraints[20]", "Params.sketch9_width2")
sketch9.setExpression("Constraints[21]", "Params.sketch9_height")
sketch9.setExpression("Constraints[22]", "Params.sketch9_height2")
revolution3 = body.newObject("PartDesign::Revolution", "Revolution002")
revolution3.Profile = sketch9
revolution3.ReferenceAxis = (sketch9, ["H_Axis"])
revolution3.setExpression("Angle", "Params.revolution3_angle")

sketch10 = body.newObject("Sketcher::SketchObject", "Sketch009")
sketch10.AttachmentSupport = (doc.getObject("YZ_Plane"), [""])
sketch10.MapMode = "FlatFace"
sketch10.AttachmentOffset = App.Placement(App.Vector(0, 0, 30.75), App.Rotation())
sketch10.addGeometry([
    Part.LineSegment(App.Vector(5.5, 5.2, 0), App.Vector(1.4, 5.2, 0)),
    Part.LineSegment(App.Vector(1.4, 5.2, 0), App.Vector(1.4, -6.3, 0)),
    Part.LineSegment(App.Vector(1.4, -6.3, 0), App.Vector(5.5, -6.3, 0)),
    Part.LineSegment(App.Vector(5.5, -6.3, 0), App.Vector(5.5, 5.2, 0)),
], False)
sketch10.addConstraint([
    Sketcher.Constraint("Coincident", 0, 2, 1, 1),
    Sketcher.Constraint("Coincident", 1, 2, 2, 1),
    Sketcher.Constraint("Coincident", 2, 2, 3, 1),
    Sketcher.Constraint("Coincident", 3, 2, 0, 1),
    Sketcher.Constraint("Horizontal", 0),
    Sketcher.Constraint("Vertical", 1),
    Sketcher.Constraint("Horizontal", 2),
    Sketcher.Constraint("Vertical", 3),
    Sketcher.Constraint("DistanceX", -1, 1, 0, 2, 1.4),
    Sketcher.Constraint("DistanceX", 0, 2, 0, 1, 4.088991),
    Sketcher.Constraint("DistanceY", 1, 2, 1, 1, 11.559264),
    Sketcher.Constraint("DistanceY", -1, 1, 0, 2, 5.248849),
])
pocket2 = body.newObject("PartDesign::Pocket", "Pocket001")
pocket2.Profile = sketch10
pocket2.setExpression("Length", "Params.pocket2_length")

sketch11 = body.newObject("Sketcher::SketchObject", "Sketch010")
sketch11.AttachmentSupport = (doc.getObject("YZ_Plane"), [""])
sketch11.MapMode = "FlatFace"
sketch11.AttachmentOffset = App.Placement(App.Vector(0, 0, -22.5), App.Rotation())
sketch11.addGeometry(Part.Circle(App.Vector(0, 0, 0), App.Vector(0, 0, 1), 1), False)
sketch11.addConstraint([
    Sketcher.Constraint("Coincident", 0, 3, -1, 1),
    Sketcher.Constraint("Diameter", 0, 2.0),
])
sketch11.setExpression("Constraints[1]", "Params.sketch11_diameter")
pad6 = body.newObject("PartDesign::Pad", "Pad005")
pad6.Profile = sketch11
pad6.setExpression("Length", "Params.pad6_length")
pad6.Reversed = True

sketch12 = body.newObject("Sketcher::SketchObject", "Sketch011")
sketch12.AttachmentSupport = (doc.getObject("YZ_Plane"), [""])
sketch12.MapMode = "FlatFace"
sketch12.AttachmentOffset = App.Placement(App.Vector(0, 0, 18.75), App.Rotation())
sketch12.addGeometry([
    Part.Circle(App.Vector(8.5, 0, 0), App.Vector(0, 0, 1), 2.8),
    Part.Circle(App.Vector(-8.5, 0, 0), App.Vector(0, 0, 1), 2.8),
], False)
sketch12.addConstraint([
    Sketcher.Constraint("Equal", 0, 1),
    Sketcher.Constraint("Symmetric", 0, 3, 1, 3, -1, 1),
    Sketcher.Constraint("PointOnObject", 0, 3, -1),
    Sketcher.Constraint("Diameter", 0, 5.5),
    Sketcher.Constraint("DistanceX", 1, 3, 0, 3, 17.0),
])
sketch12.setExpression("Constraints[3]", "Params.sketch12_diameter")
pocket3 = body.newObject("PartDesign::Pocket", "Pocket002")
pocket3.Profile = sketch12
pocket3.setExpression("Length", "Params.pocket3_length")

sketch13 = body.newObject("Sketcher::SketchObject", "Sketch012")
sketch13.AttachmentSupport = (doc.getObject("XZ_Plane"), [""])
sketch13.MapMode = "FlatFace"
sketch13.addGeometry([
    Part.LineSegment(App.Vector(9.5, 10, 0), App.Vector(18.8, 10, 0)),
    Part.LineSegment(App.Vector(18.8, 10, 0), App.Vector(18.8, 8.8, 0)),
    Part.LineSegment(App.Vector(18.8, 8.8, 0), App.Vector(10.2, 8.8, 0)),
    Part.LineSegment(App.Vector(10.2, 8.8, 0), App.Vector(9.5, 10, 0)),
], False)
sketch13.addGeometry(Part.LineSegment(App.Vector(18.8, 10, 0), App.Vector(9.5, 10, 0)), True)
sketch13.addConstraint([
    Sketcher.Constraint("Coincident", 0, 2, 1, 1),
    Sketcher.Constraint("Coincident", 1, 2, 2, 1),
    Sketcher.Constraint("Coincident", 2, 2, 3, 1),
    Sketcher.Constraint("Coincident", 3, 2, 0, 1),
    Sketcher.Constraint("Horizontal", 0),
    Sketcher.Constraint("Vertical", 1),
    Sketcher.Constraint("Horizontal", 2),
    Sketcher.Constraint("Horizontal", 4),
    Sketcher.Constraint("Coincident", 4, 1, 0, 2),
    Sketcher.Constraint("Equal", 0, 4),
    Sketcher.Constraint("Angle", 3, Q("121 deg")),
    Sketcher.Constraint("DistanceX", 2, 2, 2, 1, 8.5),
    Sketcher.Constraint("DistanceY", -1, 1, 0, 2, 10.0),
    Sketcher.Constraint("DistanceY", 1, 2, 1, 1, 1.25),
    Sketcher.Constraint("DistanceX", -1, 1, 0, 2, 18.75),
])
sketch13.setExpression("Constraints[11]", "Params.sketch13_width")
sketch13.setExpression("Constraints[13]", "Params.sketch13_height")
groove = body.newObject("PartDesign::Groove", "Groove")
groove.Profile = sketch13
groove.ReferenceAxis = (sketch13, ["Axis0"])
groove.setExpression("Angle", "Params.groove_angle")
doc.recompute()

mirrored = body.newObject("PartDesign::Mirrored", "Mirrored")
mirrored.Originals = [groove]
mirrored.MirrorPlane = (doc.getObject("XY_Plane"), [""])
body.Tip = mirrored

sketch14 = body.newObject("Sketcher::SketchObject", "Sketch013")
sketch14.AttachmentSupport = (doc.getObject("XZ_Plane"), [""])
sketch14.MapMode = "FlatFace"
sketch14.AttachmentOffset = App.Placement(App.Vector(0, 0, -7.101918), App.Rotation())
sketch14.addGeometry([
    Part.LineSegment(App.Vector(9.5, -4.7, 0), App.Vector(18.8, -4.7, 0)),
    Part.LineSegment(App.Vector(18.8, -4.7, 0), App.Vector(18.8, -5.9, 0)),
    Part.LineSegment(App.Vector(18.8, -5.9, 0), App.Vector(10.2, -5.9, 0)),
    Part.LineSegment(App.Vector(10.2, -5.9, 0), App.Vector(9.5, -4.7, 0)),
], False)
sketch14.addGeometry(Part.LineSegment(App.Vector(18.8, -4.7, 0), App.Vector(9.5, -4.7, 0)), True)
sketch14.addConstraint([
    Sketcher.Constraint("Coincident", 0, 2, 1, 1),
    Sketcher.Constraint("Coincident", 1, 2, 2, 1),
    Sketcher.Constraint("Coincident", 2, 2, 3, 1),
    Sketcher.Constraint("Coincident", 3, 2, 0, 1),
    Sketcher.Constraint("Horizontal", 0),
    Sketcher.Constraint("Vertical", 1),
    Sketcher.Constraint("Horizontal", 2),
    Sketcher.Constraint("Horizontal", 4),
    Sketcher.Constraint("Coincident", 4, 1, 0, 2),
    Sketcher.Constraint("Equal", 0, 4),
    Sketcher.Constraint("Angle", 3, Q("121 deg")),
    Sketcher.Constraint("DistanceX", 2, 2, 2, 1, 8.5),
    Sketcher.Constraint("DistanceY", 1, 2, 1, 1, 1.25),
    Sketcher.Constraint("DistanceX", -1, 1, 0, 2, 18.75),
    Sketcher.Constraint("DistanceY", 0, 2, -1, 1, 4.670413),
])
sketch14.setExpression("Constraints[11]", "Params.sketch14_width")
sketch14.setExpression("Constraints[12]", "Params.sketch14_height")
groove2 = body.newObject("PartDesign::Groove", "Groove001")
groove2.Profile = sketch14
groove2.ReferenceAxis = (sketch14, ["Axis0"])
groove2.setExpression("Angle", "Params.groove2_angle")
doc.recompute()

datumline = body.newObject("PartDesign::Line", "DatumLine")
datumline.Placement = App.Placement(App.Vector(0, 0, 0), App.Rotation(App.Vector(0, 0, 1), App.Vector(0, -0.835519779, 0.54946037)))
linearpattern = body.newObject("PartDesign::LinearPattern", "LinearPattern")
linearpattern.Originals = [groove2]
linearpattern.Direction = (datumline, [""])
linearpattern.Mode = "offset"
linearpattern.setExpression("Offset", "Params.linearpattern_pitch")
linearpattern.Occurrences = 2
body.Tip = linearpattern

sketch15 = body.newObject("Sketcher::SketchObject", "Sketch014")
sketch15.AttachmentSupport = (doc.getObject("YZ_Plane"), [""])
sketch15.MapMode = "FlatFace"
sketch15.AttachmentOffset = App.Placement(App.Vector(0, 0, -2), App.Rotation())
sketch15.addGeometry([
    Part.LineSegment(App.Vector(9.193, -7.713, 0), App.Vector(9.2, -7.72, 0)),
    Part.ArcOfCircle(Part.Circle(App.Vector(0, 0, 0), App.Vector(0, 0, 1), 12.01), math.radians(-40), math.radians(40)),
    Part.LineSegment(App.Vector(9.2, 7.72, 0), App.Vector(9.193, 7.713, 0)),
    Part.ArcOfCircle(Part.Circle(App.Vector(0, 0, 0), App.Vector(0, 0, 1), 12), math.radians(-40), math.radians(40)),
], False)
sketch15.addConstraint([
    Sketcher.Constraint("Coincident", 0, 2, 1, 1),
    Sketcher.Constraint("Coincident", 1, 2, 2, 1),
    Sketcher.Constraint("Coincident", 2, 2, 3, 2),
    Sketcher.Constraint("Coincident", 3, 1, 0, 1),
    Sketcher.Constraint("Coincident", 1, 3, -1, 1),
    Sketcher.Constraint("Coincident", 3, 3, -1, 1),
    Sketcher.Constraint("Vertical", 0, 2, 1, 2),
    Sketcher.Constraint("Vertical", 2, 2, 3, 1),
    Sketcher.Constraint("Radius", 3, 12.0),
    Sketcher.Constraint("Angle", 0, Q("-39.999997 deg")),
    Sketcher.Constraint("Radius", 1, 12.01),
    Sketcher.Constraint("DistanceY", 0, 2, -1, 1, 7.719879),
])
sketch15.setExpression("Constraints[8]", "Params.sketch15_radius")
sketch15.setExpression("Constraints[10]", "Params.sketch15_radius2")
pad7 = body.newObject("PartDesign::Pad", "Pad006")
pad7.Profile = sketch15
pad7.setExpression("Length", "Params.pad7_length")
pad7.Reversed = True
body2 = doc.addObject("PartDesign::Body", "Body001")

sketch16 = body2.newObject("Sketcher::SketchObject", "Sketch015")
sketch16.AttachmentSupport = (doc.getObject("YZ_Plane001"), [""])
sketch16.MapMode = "FlatFace"
sketch16.AttachmentOffset = App.Placement(App.Vector(0, 0, -29), App.Rotation())
sketch16.addGeometry([
    Part.Circle(App.Vector(0, 0, 0), App.Vector(0, 0, 1), 7),
    Part.Circle(App.Vector(0, 0, 0), App.Vector(0, 0, 1), 3.5),
], False)
sketch16.addConstraint([
    Sketcher.Constraint("Coincident", 0, 3, -1, 1),
    Sketcher.Constraint("Coincident", 1, 3, -1, 1),
    Sketcher.Constraint("Diameter", 0, 14.0),
    Sketcher.Constraint("Diameter", 1, 7.0),
])
sketch16.setExpression("Constraints[2]", "Params.sketch16_diameter")
sketch16.setExpression("Constraints[3]", "Params.sketch16_diameter2")
pad8 = body2.newObject("PartDesign::Pad", "Pad007")
pad8.Profile = sketch16
pad8.setExpression("Length", "Params.pad8_length")
doc.recompute()

fillet3 = body2.newObject("PartDesign::Fillet", "Fillet002")
fillet3.Base = (pad8, edges_at(pad8, [(-29, 0, -7), (-25, 0, -7)]))
fillet3.setExpression("Radius", "Params.fillet3_radius")

sketch17 = body2.newObject("Sketcher::SketchObject", "Sketch016")
sketch17.AttachmentSupport = (doc.getObject("YZ_Plane001"), [""])
sketch17.MapMode = "FlatFace"
sketch17.AttachmentOffset = App.Placement(App.Vector(0, 0, -29), App.Rotation())
sketch17.addGeometry([
    Part.Circle(App.Vector(0, 0, 0), App.Vector(0, 0, 1), 3.5),
    Part.Circle(App.Vector(0, 0, 0), App.Vector(0, 0, 1), 1),
], False)
sketch17.addConstraint([
    Sketcher.Constraint("Coincident", 0, 3, -1, 1),
    Sketcher.Constraint("Coincident", 1, 3, -1, 1),
    Sketcher.Constraint("Diameter", 0, 7.0),
    Sketcher.Constraint("Diameter", 1, 2.01),
])
sketch17.setExpression("Constraints[2]", "Params.sketch17_diameter")
sketch17.setExpression("Constraints[3]", "Params.sketch17_diameter2")
pad9 = body2.newObject("PartDesign::Pad", "Pad008")
pad9.Profile = sketch17
pad9.Type = "TwoLengths"
pad9.setExpression("Length", "Params.pad9_length")
pad9.setExpression("Length2", "Params.pad9_length2")
pad9.Reversed = True

doc.recompute()
